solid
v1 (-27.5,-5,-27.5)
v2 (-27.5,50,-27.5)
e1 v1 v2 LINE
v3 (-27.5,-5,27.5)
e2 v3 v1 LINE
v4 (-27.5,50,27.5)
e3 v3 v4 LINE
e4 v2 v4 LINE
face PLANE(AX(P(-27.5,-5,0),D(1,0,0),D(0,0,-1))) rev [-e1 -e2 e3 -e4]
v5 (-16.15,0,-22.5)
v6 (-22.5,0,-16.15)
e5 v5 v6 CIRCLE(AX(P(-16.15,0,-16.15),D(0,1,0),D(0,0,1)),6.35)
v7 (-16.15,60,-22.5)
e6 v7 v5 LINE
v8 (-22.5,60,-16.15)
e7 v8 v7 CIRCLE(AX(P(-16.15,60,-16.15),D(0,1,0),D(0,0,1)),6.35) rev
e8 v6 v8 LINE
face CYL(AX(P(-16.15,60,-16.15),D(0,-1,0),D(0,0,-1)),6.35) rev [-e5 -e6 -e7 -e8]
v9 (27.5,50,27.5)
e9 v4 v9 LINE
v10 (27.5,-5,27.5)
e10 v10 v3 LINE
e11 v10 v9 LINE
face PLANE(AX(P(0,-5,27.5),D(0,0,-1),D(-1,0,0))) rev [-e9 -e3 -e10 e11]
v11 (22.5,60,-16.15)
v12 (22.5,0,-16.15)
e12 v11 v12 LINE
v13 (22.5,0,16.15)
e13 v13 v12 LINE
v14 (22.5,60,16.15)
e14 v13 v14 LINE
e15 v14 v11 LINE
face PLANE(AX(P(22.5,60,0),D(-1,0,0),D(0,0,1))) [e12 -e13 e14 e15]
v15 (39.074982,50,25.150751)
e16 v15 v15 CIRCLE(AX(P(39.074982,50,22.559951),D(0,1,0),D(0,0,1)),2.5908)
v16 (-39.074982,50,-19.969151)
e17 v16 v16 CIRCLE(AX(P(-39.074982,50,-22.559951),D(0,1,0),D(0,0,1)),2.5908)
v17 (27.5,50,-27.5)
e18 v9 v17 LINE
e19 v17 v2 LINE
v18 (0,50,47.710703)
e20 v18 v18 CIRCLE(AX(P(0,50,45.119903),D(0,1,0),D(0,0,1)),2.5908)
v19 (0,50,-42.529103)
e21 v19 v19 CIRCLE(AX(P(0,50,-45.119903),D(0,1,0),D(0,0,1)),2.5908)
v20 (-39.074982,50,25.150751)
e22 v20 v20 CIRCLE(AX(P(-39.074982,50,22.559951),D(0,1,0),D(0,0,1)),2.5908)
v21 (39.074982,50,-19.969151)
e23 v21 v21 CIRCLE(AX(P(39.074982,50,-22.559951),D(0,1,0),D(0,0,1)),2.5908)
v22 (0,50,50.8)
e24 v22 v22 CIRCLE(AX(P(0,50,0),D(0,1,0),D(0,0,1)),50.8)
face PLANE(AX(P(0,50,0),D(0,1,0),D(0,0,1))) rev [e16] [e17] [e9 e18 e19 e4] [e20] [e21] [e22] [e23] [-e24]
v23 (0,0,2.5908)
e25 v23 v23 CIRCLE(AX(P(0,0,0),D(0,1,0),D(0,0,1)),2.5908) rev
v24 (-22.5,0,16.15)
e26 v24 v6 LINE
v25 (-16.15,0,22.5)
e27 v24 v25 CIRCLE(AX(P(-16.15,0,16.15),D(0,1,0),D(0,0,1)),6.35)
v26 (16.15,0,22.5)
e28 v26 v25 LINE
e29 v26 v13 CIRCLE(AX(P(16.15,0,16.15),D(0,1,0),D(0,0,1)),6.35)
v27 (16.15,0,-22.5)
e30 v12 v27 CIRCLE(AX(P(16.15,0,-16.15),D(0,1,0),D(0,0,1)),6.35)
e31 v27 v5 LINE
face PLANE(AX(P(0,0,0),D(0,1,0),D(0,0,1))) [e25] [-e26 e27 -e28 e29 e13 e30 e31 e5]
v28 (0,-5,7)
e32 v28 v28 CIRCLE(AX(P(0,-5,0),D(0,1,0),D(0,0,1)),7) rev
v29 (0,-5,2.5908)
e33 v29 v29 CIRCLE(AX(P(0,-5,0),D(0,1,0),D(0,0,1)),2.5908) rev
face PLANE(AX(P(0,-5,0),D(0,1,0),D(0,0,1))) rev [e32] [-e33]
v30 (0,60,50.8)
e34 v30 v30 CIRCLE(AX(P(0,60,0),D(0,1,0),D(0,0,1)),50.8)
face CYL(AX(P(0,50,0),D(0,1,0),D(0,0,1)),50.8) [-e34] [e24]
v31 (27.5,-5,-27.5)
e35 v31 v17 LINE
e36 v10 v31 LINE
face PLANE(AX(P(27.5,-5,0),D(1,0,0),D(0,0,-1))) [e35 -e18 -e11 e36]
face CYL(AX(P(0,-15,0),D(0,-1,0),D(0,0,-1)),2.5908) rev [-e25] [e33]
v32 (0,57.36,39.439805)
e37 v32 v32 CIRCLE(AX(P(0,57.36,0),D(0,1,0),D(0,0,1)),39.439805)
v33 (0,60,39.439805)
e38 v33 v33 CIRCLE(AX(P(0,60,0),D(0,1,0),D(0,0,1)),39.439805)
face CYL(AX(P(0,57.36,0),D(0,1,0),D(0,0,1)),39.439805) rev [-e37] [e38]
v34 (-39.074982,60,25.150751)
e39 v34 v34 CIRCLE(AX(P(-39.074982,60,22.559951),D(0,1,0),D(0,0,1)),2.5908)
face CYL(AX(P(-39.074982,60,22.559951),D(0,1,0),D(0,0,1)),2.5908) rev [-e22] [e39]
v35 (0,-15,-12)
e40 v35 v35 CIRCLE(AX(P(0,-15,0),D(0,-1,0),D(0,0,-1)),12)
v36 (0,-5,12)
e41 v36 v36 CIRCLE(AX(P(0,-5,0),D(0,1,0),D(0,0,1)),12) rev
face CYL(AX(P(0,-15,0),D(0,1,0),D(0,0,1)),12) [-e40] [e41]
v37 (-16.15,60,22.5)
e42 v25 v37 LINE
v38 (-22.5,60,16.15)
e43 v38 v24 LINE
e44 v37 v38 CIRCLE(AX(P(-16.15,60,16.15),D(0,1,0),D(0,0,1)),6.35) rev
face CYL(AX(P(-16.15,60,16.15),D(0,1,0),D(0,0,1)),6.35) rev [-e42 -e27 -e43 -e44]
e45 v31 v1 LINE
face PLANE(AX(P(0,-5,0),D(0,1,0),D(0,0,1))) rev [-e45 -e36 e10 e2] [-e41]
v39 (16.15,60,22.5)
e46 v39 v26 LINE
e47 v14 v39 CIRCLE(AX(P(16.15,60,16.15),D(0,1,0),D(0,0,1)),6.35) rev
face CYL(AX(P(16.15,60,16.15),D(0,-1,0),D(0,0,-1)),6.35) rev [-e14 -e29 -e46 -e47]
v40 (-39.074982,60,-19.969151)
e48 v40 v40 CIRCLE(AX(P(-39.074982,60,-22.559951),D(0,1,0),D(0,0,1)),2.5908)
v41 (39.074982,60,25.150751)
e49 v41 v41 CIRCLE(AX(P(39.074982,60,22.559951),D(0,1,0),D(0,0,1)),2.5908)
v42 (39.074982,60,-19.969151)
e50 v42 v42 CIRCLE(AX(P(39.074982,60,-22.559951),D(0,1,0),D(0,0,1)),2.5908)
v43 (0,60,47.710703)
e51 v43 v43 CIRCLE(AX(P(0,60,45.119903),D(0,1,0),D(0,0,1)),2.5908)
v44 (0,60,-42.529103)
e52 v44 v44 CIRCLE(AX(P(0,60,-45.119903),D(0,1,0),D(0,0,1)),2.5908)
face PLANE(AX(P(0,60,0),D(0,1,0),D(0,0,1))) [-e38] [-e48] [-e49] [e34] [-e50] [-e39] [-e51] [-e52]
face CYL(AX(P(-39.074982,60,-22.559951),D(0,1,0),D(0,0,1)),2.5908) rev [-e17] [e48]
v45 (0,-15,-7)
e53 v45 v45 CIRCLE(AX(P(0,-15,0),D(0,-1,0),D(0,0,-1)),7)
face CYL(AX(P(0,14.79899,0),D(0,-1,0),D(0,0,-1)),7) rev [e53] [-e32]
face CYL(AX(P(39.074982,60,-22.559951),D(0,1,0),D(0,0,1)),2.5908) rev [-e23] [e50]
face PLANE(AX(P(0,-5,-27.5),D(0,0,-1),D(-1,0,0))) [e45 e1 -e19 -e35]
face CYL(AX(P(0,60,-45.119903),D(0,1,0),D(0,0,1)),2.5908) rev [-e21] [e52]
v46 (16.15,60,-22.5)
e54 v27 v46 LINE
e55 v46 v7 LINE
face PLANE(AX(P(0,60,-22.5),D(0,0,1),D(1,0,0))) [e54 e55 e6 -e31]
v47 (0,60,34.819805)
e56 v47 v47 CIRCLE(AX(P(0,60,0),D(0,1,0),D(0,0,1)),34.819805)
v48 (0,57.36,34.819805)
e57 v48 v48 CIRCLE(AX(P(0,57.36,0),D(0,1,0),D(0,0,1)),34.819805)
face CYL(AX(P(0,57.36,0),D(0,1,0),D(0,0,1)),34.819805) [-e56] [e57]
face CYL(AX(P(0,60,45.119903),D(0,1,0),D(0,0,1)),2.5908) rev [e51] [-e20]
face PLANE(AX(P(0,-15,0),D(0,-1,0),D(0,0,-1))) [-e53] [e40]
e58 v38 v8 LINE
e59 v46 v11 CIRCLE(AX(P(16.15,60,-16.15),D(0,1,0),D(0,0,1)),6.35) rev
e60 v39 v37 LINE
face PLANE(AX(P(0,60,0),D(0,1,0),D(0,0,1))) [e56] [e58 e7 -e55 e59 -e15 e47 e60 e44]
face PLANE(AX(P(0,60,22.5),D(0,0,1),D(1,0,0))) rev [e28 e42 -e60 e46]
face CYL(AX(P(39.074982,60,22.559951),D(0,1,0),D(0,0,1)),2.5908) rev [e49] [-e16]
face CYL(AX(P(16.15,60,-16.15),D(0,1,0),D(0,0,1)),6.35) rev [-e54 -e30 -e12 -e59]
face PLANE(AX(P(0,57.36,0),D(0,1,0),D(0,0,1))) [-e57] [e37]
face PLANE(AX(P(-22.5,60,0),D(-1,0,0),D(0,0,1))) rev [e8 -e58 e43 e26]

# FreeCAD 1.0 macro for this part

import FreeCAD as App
import Part
import Sketcher
Q = App.Units.Quantity


def edges_at(feature, points):
    """Names of the edges that pass closest to the given points."""
    edges = feature.Shape.Edges
    near = lambda p: min(range(len(edges)), key=lambda i: edges[i].distToShape(Part.Vertex(*p))[0])
    return sorted({f"Edge{near(p) + 1}" for p in points})


def add_polygon(sketch, points):
    """Adds a closed chain of lines whose ends are joined by coincident constraints."""
    first, n = sketch.GeometryCount, len(points)
    for a, b in zip(points, points[1:] + points[:1]):
        sketch.addGeometry(Part.LineSegment(App.Vector(*a, 0), App.Vector(*b, 0)), False)
    for i in range(n):
        sketch.addConstraint(Sketcher.Constraint("Coincident", first + i, 2, first + (i + 1) % n, 1))

doc = App.newDocument("Part")
params = doc.addObject("Spreadsheet::Sheet", "Params")
for row, (alias, value) in enumerate([
    ("sketch1_width", "55 mm"),
    ("pad1_length", "5 mm"),
    ("sketch2_width", "55 mm"),
    ("sketch2_width2", "45 mm"),
    ("pad2_length", "60 mm"),
    ("sketch3_diameter", "101.6 mm"),
    ("sketch3_width", "55 mm"),
    ("pad3_length", "10 mm"),
    ("sketch4_diameter", "24 mm"),
    ("pad4_length", "10 mm"),
    ("hole_diameter", "5.1816 mm"),
    ("sketch6_diameter", "14 mm"),
    ("pocket1_length", "10 mm"),
    ("pocket2_length", "2.64 mm"),
    ("fillet_radius", "6.35 mm"),
    ("hole2_diameter", "5.1816 mm"),
], start=1):
    params.set(f"A{row}", alias)
    params.set(f"B{row}", "=" + value)
    params.setAlias(f"B{row}", alias)

body = doc.addObject("PartDesign::Body", "Body")

sketch1 = body.newObject("Sketcher::SketchObject", "Sketch")
sketch1.AttachmentSupport = (doc.getObject("XZ_Plane"), [""])
sketch1.MapMode = "FlatFace"
add_polygon(sketch1, [(-28, -28), (-28, 28), (28, 28), (28, -28)])
sketch1.addConstraint([
    Sketcher.Constraint("Vertical", 0),
    Sketcher.Constraint("Horizontal", 1),
    Sketcher.Constraint("Vertical", 2),
    Sketcher.Constraint("Horizontal", 3),
    Sketcher.Constraint("Symmetric", 0, 2, 2, 2, -1, 1),
    Sketcher.Constraint("Equal", 3, 0),
    Sketcher.Constraint("DistanceX", 1, 1, 1, 2, Q("55 mm")),
])
sketch1.setExpression("Constraints[10]", "Params.sketch1_width")
pad1 = body.newObject("PartDesign::Pad", "Pad")
pad1.Profile = sketch1
pad1.setExpression("Length", "Params.pad1_length")

sketch2 = body.newObject("Sketcher::SketchObject", "Sketch001")
sketch2.AttachmentSupport = (doc.getObject("XZ_Plane"), [""])
sketch2.MapMode = "FlatFace"
add_polygon(sketch2, [(-28, -28), (-28, 28), (28, 28), (28, -28)])
add_polygon(sketch2, [(22, 22), (-22, 22), (-22, -22), (22, -22)])
sketch2.addConstraint([
    Sketcher.Constraint("Vertical", 0),
    Sketcher.Constraint("Horizontal", 1),
    Sketcher.Constraint("Vertical", 2),
    Sketcher.Constraint("Horizontal", 3),
    Sketcher.Constraint("Horizontal", 4),
    Sketcher.Constraint("Vertical", 5),
    Sketcher.Constraint("Horizontal", 6),
    Sketcher.Constraint("Vertical", 7),
    Sketcher.Constraint("Symmetric", 0, 2, 2, 2, -1, 1),
    Sketcher.Constraint("Symmetric", 4, 2, 6, 2, -1, 1),
    Sketcher.Constraint("Equal", 3, 0),
    Sketcher.Constraint("Equal", 6, 5),
    Sketcher.Constraint("DistanceX", 1, 1, 1, 2, Q("55 mm")),
    Sketcher.Constraint("DistanceX", 4, 2, 4, 1, Q("45 mm")),
])
sketch2.setExpression("Constraints[20]", "Params.sketch2_width")
sketch2.setExpression("Constraints[21]", "Params.sketch2_width2")
pad2 = body.newObject("PartDesign::Pad", "Pad001")
pad2.Profile = sketch2
pad2.setExpression("Length", "Params.pad2_length")
pad2.Reversed = True

sketch3 = body.newObject("Sketcher::SketchObject", "Sketch002")
sketch3.AttachmentSupport = (doc.getObject("XZ_Plane"), [""])
sketch3.MapMode = "FlatFace"
sketch3.AttachmentOffset = App.Placement(App.Vector(0, 0, -60), App.Rotation())
sketch3.addGeometry(Part.Circle(App.Vector(0, 0, 0), App.Vector(0, 0, 1), 51), False)
add_polygon(sketch3, [(28, 28), (-28, 28), (-28, -28), (28, -28)])
sketch3.addConstraint([
    Sketcher.Constraint("Horizontal", 1),
    Sketcher.Constraint("Vertical", 2),
    Sketcher.Constraint("Horizontal", 3),
    Sketcher.Constraint("Vertical", 4),
    Sketcher.Constraint("Coincident", 0, 3, -1, 1),
    Sketcher.Constraint("Symmetric", 1, 2, 3, 2, -1, 1),
    Sketcher.Constraint("Equal", 3, 2),
    Sketcher.Constraint("Diameter", 0, Q("101.6 mm")),
    Sketcher.Constraint("DistanceX", 1, 2, 1, 1, Q("55 mm")),
])
sketch3.setExpression("Constraints[11]", "Params.sketch3_diameter")
sketch3.setExpression("Constraints[12]", "Params.sketch3_width")
pad3 = body.newObject("PartDesign::Pad", "Pad002")
pad3.Profile = sketch3
pad3.setExpression("Length", "Params.pad3_length")

sketch4 = body.newObject("Sketcher::SketchObject", "Sketch003")
sketch4.AttachmentSupport = (doc.getObject("XZ_Plane"), [""])
sketch4.MapMode = "FlatFace"
sketch4.AttachmentOffset = App.Placement(App.Vector(0, 0, 5), App.Rotation())
sketch4.addGeometry(Part.Circle(App.Vector(0, 0, 0), App.Vector(0, 0, 1), 12), False)
sketch4.addConstraint([
    Sketcher.Constraint("Coincident", 0, 3, -1, 1),
    Sketcher.Constraint("Diameter", 0, Q("24 mm")),
])
sketch4.setExpression("Constraints[1]", "Params.sketch4_diameter")
pad4 = body.newObject("PartDesign::Pad", "Pad003")
pad4.Profile = sketch4
pad4.setExpression("Length", "Params.pad4_length")

sketch5 = body.newObject("Sketcher::SketchObject", "Sketch004")
sketch5.AttachmentSupport = (doc.getObject("XZ_Plane"), [""])
sketch5.MapMode = "FlatFace"
sketch5.AttachmentOffset = App.Placement(App.Vector(0, 0, 15), App.Rotation())
sketch5.addGeometry(Part.Circle(App.Vector(0, 0, 0), App.Vector(0, 0, 1), 2.6), False)
sketch5.addConstraint([
    Sketcher.Constraint("Coincident", 0, 3, -1, 1),
    Sketcher.Constraint("Diameter", 0, Q("5.1816 mm")),
])
doc.recompute()
hole = body.newObject("PartDesign::Hole", "Hole")
hole.Profile = sketch5
hole.ThreadType = "None"
hole.setExpression("Diameter", "Params.hole_diameter")
hole.DepthType = "ThroughAll"

sketch6 = body.newObject("Sketcher::SketchObject", "Sketch005")
sketch6.AttachmentSupport = (doc.getObject("XZ_Plane"), [""])
sketch6.MapMode = "FlatFace"
sketch6.AttachmentOffset = App.Placement(App.Vector(0, 0, 15), App.Rotation())
sketch6.addGeometry(Part.Circle(App.Vector(0, 0, 0), App.Vector(0, 0, 1), 7), False)
sketch6.addConstraint([
    Sketcher.Constraint("Coincident", 0, 3, -1, 1),
    Sketcher.Constraint("Diameter", 0, Q("14 mm")),
])
sketch6.setExpression("Constraints[1]", "Params.sketch6_diameter")
pocket1 = body.newObject("PartDesign::Pocket", "Pocket")
pocket1.Profile = sketch6
pocket1.setExpression("Length", "Params.pocket1_length")

sketch7 = body.newObject("Sketcher::SketchObject", "Sketch006")
sketch7.AttachmentSupport = (doc.getObject("XZ_Plane"), [""])
sketch7.MapMode = "FlatFace"
sketch7.AttachmentOffset = App.Placement(App.Vector(0, 0, -60), App.Rotation())
sketch7.addGeometry([
    Part.Circle(App.Vector(0, 0, 0), App.Vector(0, 0, 1), 39),
    Part.Circle(App.Vector(0, 0, 0), App.Vector(0, 0, 1), 35),
], False)
sketch7.addConstraint([
    Sketcher.Constraint("Coincident", 0, 3, -1, 1),
    Sketcher.Constraint("Coincident", 1, 3, -1, 1),
    Sketcher.Constraint("Diameter", 0, Q("78.87961 mm")),
    Sketcher.Constraint("Diameter", 1, Q("69.63961 mm")),
])
pocket2 = body.newObject("PartDesign::Pocket", "Pocket001")
pocket2.Profile = sketch7
pocket2.setExpression("Length", "Params.pocket2_length")
pocket2.Reversed = True
doc.recompute()

fillet = body.newObject("PartDesign::Fillet", "Fillet")
fillet.Base = (pocket2, edges_at(pocket2, [
    (22.5, 30, 22.5),
    (-22.5, 30, 22.5),
    (-22.5, 30, -22.5),
    (22.5, 30, -22.5),
]))
fillet.setExpression("Radius", "Params.fillet_radius")

sketch8 = body.newObject("Sketcher::SketchObject", "Sketch007")
sketch8.AttachmentSupport = (doc.getObject("XZ_Plane"), [""])
sketch8.MapMode = "FlatFace"
sketch8.AttachmentOffset = App.Placement(App.Vector(0, 0, -60), App.Rotation())
sketch8.addGeometry(Part.Circle(App.Vector(-39.1, 22.6, 0), App.Vector(0, 0, 1), 2.6), False)
sketch8.addConstraint([
    Sketcher.Constraint("Diameter", 0, Q("5.1816 mm")),
    Sketcher.Constraint("DistanceX", 0, 3, -1, 1, Q("39.074982 mm")),
    Sketcher.Constraint("DistanceY", -1, 1, 0, 3, Q("22.559951 mm")),
])
doc.recompute()
hole2 = body.newObject("PartDesign::Hole", "Hole001")
hole2.Profile = sketch8
hole2.ThreadType = "None"
hole2.setExpression("Diameter", "Params.hole2_diameter")
hole2.DepthType = "ThroughAll"
hole2.Reversed = True
doc.recompute()

polarpattern = body.newObject("PartDesign::PolarPattern", "PolarPattern")
polarpattern.Originals = [hole2]
polarpattern.Axis = (doc.getObject("Y_Axis"), [""])
polarpattern.Angle = 360
polarpattern.Occurrences = 6
body.Tip = polarpattern

doc.recompute()
